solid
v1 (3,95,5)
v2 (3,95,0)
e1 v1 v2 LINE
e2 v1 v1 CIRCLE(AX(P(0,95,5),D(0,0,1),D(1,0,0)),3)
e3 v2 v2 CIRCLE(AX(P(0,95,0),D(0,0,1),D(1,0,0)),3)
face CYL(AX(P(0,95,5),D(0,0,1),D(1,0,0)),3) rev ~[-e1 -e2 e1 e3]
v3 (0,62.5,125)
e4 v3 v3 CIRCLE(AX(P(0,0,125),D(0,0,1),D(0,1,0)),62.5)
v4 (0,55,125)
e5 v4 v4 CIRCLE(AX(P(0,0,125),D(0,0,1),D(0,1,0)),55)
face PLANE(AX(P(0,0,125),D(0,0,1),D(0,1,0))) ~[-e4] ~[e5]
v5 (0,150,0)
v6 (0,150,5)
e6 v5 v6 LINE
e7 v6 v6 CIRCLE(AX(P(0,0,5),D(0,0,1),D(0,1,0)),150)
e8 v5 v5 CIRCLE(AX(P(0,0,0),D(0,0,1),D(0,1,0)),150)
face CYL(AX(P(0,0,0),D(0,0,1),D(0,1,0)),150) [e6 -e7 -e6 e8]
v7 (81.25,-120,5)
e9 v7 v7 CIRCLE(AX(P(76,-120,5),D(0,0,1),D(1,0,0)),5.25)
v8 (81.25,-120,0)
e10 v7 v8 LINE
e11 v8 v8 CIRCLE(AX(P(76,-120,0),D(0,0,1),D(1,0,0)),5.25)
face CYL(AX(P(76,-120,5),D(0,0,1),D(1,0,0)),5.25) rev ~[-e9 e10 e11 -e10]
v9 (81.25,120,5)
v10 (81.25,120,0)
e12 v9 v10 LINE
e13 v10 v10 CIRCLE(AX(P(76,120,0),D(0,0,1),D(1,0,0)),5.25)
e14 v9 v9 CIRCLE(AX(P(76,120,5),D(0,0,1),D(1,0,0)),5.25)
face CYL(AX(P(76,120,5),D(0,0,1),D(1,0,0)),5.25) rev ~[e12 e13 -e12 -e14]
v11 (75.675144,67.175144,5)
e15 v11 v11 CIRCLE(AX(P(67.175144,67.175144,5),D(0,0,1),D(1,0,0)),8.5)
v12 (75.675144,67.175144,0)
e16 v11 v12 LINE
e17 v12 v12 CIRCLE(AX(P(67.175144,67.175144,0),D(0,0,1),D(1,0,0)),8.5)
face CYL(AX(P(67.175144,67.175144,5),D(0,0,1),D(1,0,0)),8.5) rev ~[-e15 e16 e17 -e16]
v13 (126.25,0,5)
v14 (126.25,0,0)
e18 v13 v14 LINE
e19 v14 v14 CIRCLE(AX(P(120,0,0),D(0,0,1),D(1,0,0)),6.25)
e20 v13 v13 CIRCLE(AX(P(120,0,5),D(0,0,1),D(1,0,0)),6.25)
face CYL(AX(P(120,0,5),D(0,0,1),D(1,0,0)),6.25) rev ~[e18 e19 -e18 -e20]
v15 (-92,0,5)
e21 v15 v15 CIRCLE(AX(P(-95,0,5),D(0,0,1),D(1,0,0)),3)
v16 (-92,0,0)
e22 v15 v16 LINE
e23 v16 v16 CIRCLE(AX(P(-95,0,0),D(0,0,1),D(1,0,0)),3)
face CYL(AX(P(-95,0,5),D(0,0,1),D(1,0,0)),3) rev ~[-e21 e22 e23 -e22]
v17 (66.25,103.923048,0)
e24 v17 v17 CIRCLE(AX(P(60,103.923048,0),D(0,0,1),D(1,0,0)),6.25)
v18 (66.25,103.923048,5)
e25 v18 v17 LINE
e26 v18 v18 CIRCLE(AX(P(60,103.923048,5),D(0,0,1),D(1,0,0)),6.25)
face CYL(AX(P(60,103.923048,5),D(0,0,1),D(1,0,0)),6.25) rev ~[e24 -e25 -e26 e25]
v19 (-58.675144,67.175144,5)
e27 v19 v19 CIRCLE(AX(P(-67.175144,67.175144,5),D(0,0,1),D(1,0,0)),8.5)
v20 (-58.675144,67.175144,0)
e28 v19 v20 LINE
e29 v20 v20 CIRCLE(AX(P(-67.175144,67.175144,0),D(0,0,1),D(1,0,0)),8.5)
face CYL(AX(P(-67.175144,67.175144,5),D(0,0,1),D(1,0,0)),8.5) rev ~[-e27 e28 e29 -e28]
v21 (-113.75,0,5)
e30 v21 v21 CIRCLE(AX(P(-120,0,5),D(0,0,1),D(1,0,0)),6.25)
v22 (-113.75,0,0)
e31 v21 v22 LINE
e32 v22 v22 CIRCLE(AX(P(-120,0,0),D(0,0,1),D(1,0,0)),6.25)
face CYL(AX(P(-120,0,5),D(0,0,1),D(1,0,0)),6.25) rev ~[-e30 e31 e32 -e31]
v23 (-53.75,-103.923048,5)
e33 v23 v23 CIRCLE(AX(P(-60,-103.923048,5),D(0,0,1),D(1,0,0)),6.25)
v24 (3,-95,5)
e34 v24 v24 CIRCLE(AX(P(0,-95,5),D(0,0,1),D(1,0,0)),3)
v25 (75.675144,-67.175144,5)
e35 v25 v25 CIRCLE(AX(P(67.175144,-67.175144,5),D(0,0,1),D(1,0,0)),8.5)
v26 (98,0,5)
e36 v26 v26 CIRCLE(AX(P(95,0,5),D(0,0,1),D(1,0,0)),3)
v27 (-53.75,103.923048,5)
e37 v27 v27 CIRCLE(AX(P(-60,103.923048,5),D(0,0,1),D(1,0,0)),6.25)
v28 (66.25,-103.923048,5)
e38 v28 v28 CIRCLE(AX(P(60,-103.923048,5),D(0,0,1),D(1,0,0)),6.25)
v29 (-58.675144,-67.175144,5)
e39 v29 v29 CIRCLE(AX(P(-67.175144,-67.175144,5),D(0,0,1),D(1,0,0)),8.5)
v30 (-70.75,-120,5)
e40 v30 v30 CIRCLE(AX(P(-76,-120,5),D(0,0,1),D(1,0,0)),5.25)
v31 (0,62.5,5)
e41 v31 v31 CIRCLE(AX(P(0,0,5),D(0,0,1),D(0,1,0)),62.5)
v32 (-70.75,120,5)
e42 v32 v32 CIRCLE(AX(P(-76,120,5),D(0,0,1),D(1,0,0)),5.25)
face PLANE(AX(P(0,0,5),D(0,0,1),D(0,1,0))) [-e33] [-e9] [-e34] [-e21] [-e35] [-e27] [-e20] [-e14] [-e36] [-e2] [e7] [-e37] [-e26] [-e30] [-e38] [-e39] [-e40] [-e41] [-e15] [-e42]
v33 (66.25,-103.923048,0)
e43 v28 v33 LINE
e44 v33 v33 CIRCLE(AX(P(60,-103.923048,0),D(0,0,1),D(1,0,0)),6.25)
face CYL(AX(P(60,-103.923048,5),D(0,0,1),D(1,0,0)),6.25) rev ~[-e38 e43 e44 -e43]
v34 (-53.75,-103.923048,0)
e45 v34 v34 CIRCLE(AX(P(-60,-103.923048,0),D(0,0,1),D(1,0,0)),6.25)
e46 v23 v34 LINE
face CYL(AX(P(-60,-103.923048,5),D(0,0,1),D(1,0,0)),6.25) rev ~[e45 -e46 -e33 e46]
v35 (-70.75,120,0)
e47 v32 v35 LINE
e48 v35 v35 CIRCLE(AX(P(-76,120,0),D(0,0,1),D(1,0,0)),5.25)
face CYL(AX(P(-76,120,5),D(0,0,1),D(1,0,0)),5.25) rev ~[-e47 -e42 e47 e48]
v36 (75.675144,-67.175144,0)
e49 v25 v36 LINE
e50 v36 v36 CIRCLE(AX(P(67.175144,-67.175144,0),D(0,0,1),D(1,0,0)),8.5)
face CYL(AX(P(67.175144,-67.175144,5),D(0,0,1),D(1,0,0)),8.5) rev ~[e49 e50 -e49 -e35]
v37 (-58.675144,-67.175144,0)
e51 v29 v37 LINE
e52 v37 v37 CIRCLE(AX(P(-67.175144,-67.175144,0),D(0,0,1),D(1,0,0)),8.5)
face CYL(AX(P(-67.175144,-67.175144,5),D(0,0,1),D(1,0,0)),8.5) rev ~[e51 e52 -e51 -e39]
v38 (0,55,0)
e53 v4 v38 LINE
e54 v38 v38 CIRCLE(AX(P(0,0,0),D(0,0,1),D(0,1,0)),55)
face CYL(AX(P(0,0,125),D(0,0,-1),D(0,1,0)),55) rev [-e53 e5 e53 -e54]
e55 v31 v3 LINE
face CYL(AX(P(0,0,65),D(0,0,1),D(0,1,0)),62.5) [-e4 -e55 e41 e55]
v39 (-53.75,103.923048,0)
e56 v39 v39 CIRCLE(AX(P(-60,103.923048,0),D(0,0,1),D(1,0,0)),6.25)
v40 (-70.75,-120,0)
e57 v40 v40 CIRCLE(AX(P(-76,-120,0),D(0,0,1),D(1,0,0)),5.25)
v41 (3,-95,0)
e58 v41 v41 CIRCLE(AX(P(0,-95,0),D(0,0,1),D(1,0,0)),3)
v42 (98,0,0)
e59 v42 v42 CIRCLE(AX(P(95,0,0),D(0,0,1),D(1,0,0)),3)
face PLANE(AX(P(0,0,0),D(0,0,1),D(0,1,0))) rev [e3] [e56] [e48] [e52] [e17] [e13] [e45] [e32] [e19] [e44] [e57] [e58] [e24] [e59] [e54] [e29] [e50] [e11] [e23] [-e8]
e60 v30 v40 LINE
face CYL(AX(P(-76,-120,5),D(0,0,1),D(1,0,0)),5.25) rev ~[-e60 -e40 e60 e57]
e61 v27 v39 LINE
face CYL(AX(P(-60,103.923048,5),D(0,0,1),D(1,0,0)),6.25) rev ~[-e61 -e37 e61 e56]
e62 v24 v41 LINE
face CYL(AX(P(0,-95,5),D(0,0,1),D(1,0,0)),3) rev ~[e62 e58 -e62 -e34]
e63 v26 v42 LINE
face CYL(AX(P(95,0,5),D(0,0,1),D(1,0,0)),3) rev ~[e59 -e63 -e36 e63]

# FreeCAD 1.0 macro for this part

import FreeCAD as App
import Part
import Sketcher

doc = App.newDocument("Part")
params = doc.addObject("Spreadsheet::Sheet", "Params")
for row, (alias, value) in enumerate([
    ("sketch1_width", "95 mm"),
    ("sketch1_height", "5 mm"),
    ("sketch1_height2", "120 mm"),
    ("sketch1_width2", "87.5 mm"),
    ("revolution_angle", "360 deg"),
    ("sketch2_diameter", "6 mm"),
    ("sketch2_diameter2", "17 mm"),
    ("sketch2_diameter3", "12.5 mm"),
    ("sketch2_diameter4", "10.5 mm"),
], start=1):
    params.set(f"A{row}", alias)
    params.set(f"B{row}", "=" + value)
    params.setAlias(f"B{row}", alias)

body = doc.addObject("PartDesign::Body", "Body")

# Sketch on YZ plane
sketch1 = body.newObject("Sketcher::SketchObject", "Sketch")
sketch1.AttachmentSupport = (doc.getObject("YZ_Plane"), [""])
sketch1.MapMode = "FlatFace"
sketch1.addGeometry(Part.LineSegment(App.Vector(55, 0, 0), App.Vector(150, 0, 0)), False)
sketch1.addGeometry(Part.LineSegment(App.Vector(150, 0, 0), App.Vector(150, 5, 0)), False)
sketch1.addGeometry(Part.LineSegment(App.Vector(150, 5, 0), App.Vector(62.5, 5, 0)), False)
sketch1.addGeometry(Part.LineSegment(App.Vector(62.5, 5, 0), App.Vector(62.5, 125, 0)), False)
sketch1.addGeometry(Part.LineSegment(App.Vector(62.5, 125, 0), App.Vector(55, 125, 0)), False)
sketch1.addGeometry(Part.LineSegment(App.Vector(55, 125, 0), App.Vector(55, 0, 0)), False)
sketch1.addConstraint(Sketcher.Constraint("Coincident", 0, 2, 1, 1))
sketch1.addConstraint(Sketcher.Constraint("Coincident", 1, 2, 2, 1))
sketch1.addConstraint(Sketcher.Constraint("Coincident", 2, 2, 3, 1))
sketch1.addConstraint(Sketcher.Constraint("Coincident", 3, 2, 4, 1))
sketch1.addConstraint(Sketcher.Constraint("Coincident", 4, 2, 5, 1))
sketch1.addConstraint(Sketcher.Constraint("Coincident", 5, 2, 0, 1))
sketch1.addConstraint(Sketcher.Constraint("Horizontal", 0))
sketch1.addConstraint(Sketcher.Constraint("Vertical", 1))
sketch1.addConstraint(Sketcher.Constraint("Horizontal", 2))
sketch1.addConstraint(Sketcher.Constraint("Vertical", 3))
sketch1.addConstraint(Sketcher.Constraint("Horizontal", 4))
sketch1.addConstraint(Sketcher.Constraint("Vertical", 5))
sketch1.addConstraint(Sketcher.Constraint("PointOnObject", 0, 2, -1))
sketch1.addConstraint(Sketcher.Constraint("DistanceX", 0, 1, 0, 2, 95.0))
sketch1.addConstraint(Sketcher.Constraint("DistanceY", 1, 1, 1, 2, 5.0))
sketch1.addConstraint(Sketcher.Constraint("DistanceY", 3, 1, 3, 2, 120.0))
sketch1.addConstraint(Sketcher.Constraint("DistanceX", 2, 2, 2, 1, 87.5))
sketch1.addConstraint(Sketcher.Constraint("DistanceX", -1, 1, 0, 2, 150.0))
sketch1.setExpression("Constraints[13]", "Params.sketch1_width")
sketch1.setExpression("Constraints[14]", "Params.sketch1_height")
sketch1.setExpression("Constraints[15]", "Params.sketch1_height2")
sketch1.setExpression("Constraints[16]", "Params.sketch1_width2")
revolution = body.newObject("PartDesign::Revolution", "Revolution")
revolution.Profile = sketch1
revolution.ReferenceAxis = (sketch1, ["V_Axis"])
revolution.setExpression("Angle", "Params.revolution_angle")

# Sketch on XY plane
sketch2 = body.newObject("Sketcher::SketchObject", "Sketch001")
sketch2.AttachmentSupport = (doc.getObject("XY_Plane"), [""])
sketch2.MapMode = "FlatFace"
sketch2.AttachmentOffset = App.Placement(App.Vector(0, 0, 5), App.Rotation())
sketch2.addGeometry(Part.Circle(App.Vector(-120, 0, 0), App.Vector(0, 0, 1), 6.25), False)
sketch2.addGeometry(Part.Circle(App.Vector(-60, -103.923048, 0), App.Vector(0, 0, 1), 6.25), False)
sketch2.addGeometry(Part.Circle(App.Vector(60, -103.923048, 0), App.Vector(0, 0, 1), 6.25), False)
sketch2.addGeometry(Part.Circle(App.Vector(120, 0, 0), App.Vector(0, 0, 1), 6.25), False)
sketch2.addGeometry(Part.Circle(App.Vector(60, 103.923048, 0), App.Vector(0, 0, 1), 6.25), False)
sketch2.addGeometry(Part.Circle(App.Vector(-60, 103.923048, 0), App.Vector(0, 0, 1), 6.25), False)
sketch2.addGeometry(Part.Circle(App.Vector(0, 95, 0), App.Vector(0, 0, 1), 3), False)
sketch2.addGeometry(Part.Circle(App.Vector(-95, 0, 0), App.Vector(0, 0, 1), 3), False)
sketch2.addGeometry(Part.Circle(App.Vector(0, -95, 0), App.Vector(0, 0, 1), 3), False)
sketch2.addGeometry(Part.Circle(App.Vector(95, 0, 0), App.Vector(0, 0, 1), 3), False)
sketch2.addGeometry(Part.Circle(App.Vector(-67.175144, 67.175144, 0), App.Vector(0, 0, 1), 8.5), False)
sketch2.addGeometry(Part.Circle(App.Vector(-67.175144, -67.175144, 0), App.Vector(0, 0, 1), 8.5), False)
sketch2.addGeometry(Part.Circle(App.Vector(67.175144, -67.175144, 0), App.Vector(0, 0, 1), 8.5), False)
sketch2.addGeometry(Part.Circle(App.Vector(67.175144, 67.175144, 0), App.Vector(0, 0, 1), 8.5), False)
sketch2.addGeometry(Part.Circle(App.Vector(-76, 120, 0), App.Vector(0, 0, 1), 5.25), False)
sketch2.addGeometry(Part.Circle(App.Vector(-76, -120, 0), App.Vector(0, 0, 1), 5.25), False)
sketch2.addGeometry(Part.Circle(App.Vector(76, 120, 0), App.Vector(0, 0, 1), 5.25), False)
sketch2.addGeometry(Part.Circle(App.Vector(76, -120, 0), App.Vector(0, 0, 1), 5.25), False)
sketch2.addConstraint(Sketcher.Constraint("Equal", 0, 1))
sketch2.addConstraint(Sketcher.Constraint("Equal", 1, 2))
sketch2.addConstraint(Sketcher.Constraint("Equal", 2, 3))
sketch2.addConstraint(Sketcher.Constraint("Equal", 3, 4))
sketch2.addConstraint(Sketcher.Constraint("Equal", 4, 5))
sketch2.addConstraint(Sketcher.Constraint("Equal", 6, 7))
sketch2.addConstraint(Sketcher.Constraint("Equal", 7, 8))
sketch2.addConstraint(Sketcher.Constraint("Equal", 8, 9))
sketch2.addConstraint(Sketcher.Constraint("Equal", 10, 11))
sketch2.addConstraint(Sketcher.Constraint("Equal", 11, 12))
sketch2.addConstraint(Sketcher.Constraint("Equal", 12, 13))
sketch2.addConstraint(Sketcher.Constraint("Equal", 14, 15))
sketch2.addConstraint(Sketcher.Constraint("Equal", 15, 16))
sketch2.addConstraint(Sketcher.Constraint("Equal", 16, 17))
sketch2.addConstraint(Sketcher.Constraint("Symmetric", 0, 3, 3, 3, -1, 1))
sketch2.addConstraint(Sketcher.Constraint("Symmetric", 1, 3, 4, 3, -1, 1))
sketch2.addConstraint(Sketcher.Constraint("Symmetric", 2, 3, 5, 3, -1, 1))
sketch2.addConstraint(Sketcher.Constraint("Symmetric", 6, 3, 8, 3, -1, 1))
sketch2.addConstraint(Sketcher.Constraint("Symmetric", 7, 3, 9, 3, -1, 1))
sketch2.addConstraint(Sketcher.Constraint("Symmetric", 10, 3, 12, 3, -1, 1))
sketch2.addConstraint(Sketcher.Constraint("Symmetric", 11, 3, 13, 3, -1, 1))
sketch2.addConstraint(Sketcher.Constraint("Symmetric", 15, 3, 16, 3, -1, 1))
sketch2.addConstraint(Sketcher.Constraint("Symmetric", 14, 3, 17, 3, -1, 1))
sketch2.addConstraint(Sketcher.Constraint("Symmetric", 1, 3, 2, 3, -2))
sketch2.addConstraint(Sketcher.Constraint("Symmetric", 11, 3, 12, 3, -2))
sketch2.addConstraint(Sketcher.Constraint("Symmetric", 14, 3, 16, 3, -2))
sketch2.addConstraint(Sketcher.Constraint("PointOnObject", 0, 3, -1))
sketch2.addConstraint(Sketcher.Constraint("PointOnObject", 6, 3, -2))
sketch2.addConstraint(Sketcher.Constraint("PointOnObject", 7, 3, -1))
sketch2.addConstraint(Sketcher.Constraint("Diameter", 6, 6.0))
sketch2.addConstraint(Sketcher.Constraint("Diameter", 10, 17.0))
sketch2.addConstraint(Sketcher.Constraint("Diameter", 0, 12.5))
sketch2.addConstraint(Sketcher.Constraint("Diameter", 14, 10.5))
sketch2.addConstraint(Sketcher.Constraint("DistanceX", 0, 3, -1, 1, 120.0))
sketch2.addConstraint(Sketcher.Constraint("DistanceX", 1, 3, -1, 1, 60.0))
sketch2.addConstraint(Sketcher.Constraint("DistanceY", -1, 1, 6, 3, 95.0))
sketch2.addConstraint(Sketcher.Constraint("DistanceX", 7, 3, -1, 1, 95.0))
sketch2.addConstraint(Sketcher.Constraint("DistanceX", 14, 3, -1, 1, 76.0))
sketch2.addConstraint(Sketcher.Constraint("DistanceY", -1, 1, 14, 3, 120.0))
sketch2.addConstraint(Sketcher.Constraint("DistanceY", 1, 3, 6, 3, 198.923048))
sketch2.addConstraint(Sketcher.Constraint("DistanceX", 10, 3, -1, 1, 67.175144))
sketch2.addConstraint(Sketcher.Constraint("DistanceY", -1, 1, 10, 3, 67.175144))
sketch2.setExpression("Constraints[29]", "Params.sketch2_diameter")
sketch2.setExpression("Constraints[30]", "Params.sketch2_diameter2")
sketch2.setExpression("Constraints[31]", "Params.sketch2_diameter3")
sketch2.setExpression("Constraints[32]", "Params.sketch2_diameter4")
pocket1 = body.newObject("PartDesign::Pocket", "Pocket")
pocket1.Profile = sketch2
pocket1.Type = "ThroughAll"

doc.recompute()
